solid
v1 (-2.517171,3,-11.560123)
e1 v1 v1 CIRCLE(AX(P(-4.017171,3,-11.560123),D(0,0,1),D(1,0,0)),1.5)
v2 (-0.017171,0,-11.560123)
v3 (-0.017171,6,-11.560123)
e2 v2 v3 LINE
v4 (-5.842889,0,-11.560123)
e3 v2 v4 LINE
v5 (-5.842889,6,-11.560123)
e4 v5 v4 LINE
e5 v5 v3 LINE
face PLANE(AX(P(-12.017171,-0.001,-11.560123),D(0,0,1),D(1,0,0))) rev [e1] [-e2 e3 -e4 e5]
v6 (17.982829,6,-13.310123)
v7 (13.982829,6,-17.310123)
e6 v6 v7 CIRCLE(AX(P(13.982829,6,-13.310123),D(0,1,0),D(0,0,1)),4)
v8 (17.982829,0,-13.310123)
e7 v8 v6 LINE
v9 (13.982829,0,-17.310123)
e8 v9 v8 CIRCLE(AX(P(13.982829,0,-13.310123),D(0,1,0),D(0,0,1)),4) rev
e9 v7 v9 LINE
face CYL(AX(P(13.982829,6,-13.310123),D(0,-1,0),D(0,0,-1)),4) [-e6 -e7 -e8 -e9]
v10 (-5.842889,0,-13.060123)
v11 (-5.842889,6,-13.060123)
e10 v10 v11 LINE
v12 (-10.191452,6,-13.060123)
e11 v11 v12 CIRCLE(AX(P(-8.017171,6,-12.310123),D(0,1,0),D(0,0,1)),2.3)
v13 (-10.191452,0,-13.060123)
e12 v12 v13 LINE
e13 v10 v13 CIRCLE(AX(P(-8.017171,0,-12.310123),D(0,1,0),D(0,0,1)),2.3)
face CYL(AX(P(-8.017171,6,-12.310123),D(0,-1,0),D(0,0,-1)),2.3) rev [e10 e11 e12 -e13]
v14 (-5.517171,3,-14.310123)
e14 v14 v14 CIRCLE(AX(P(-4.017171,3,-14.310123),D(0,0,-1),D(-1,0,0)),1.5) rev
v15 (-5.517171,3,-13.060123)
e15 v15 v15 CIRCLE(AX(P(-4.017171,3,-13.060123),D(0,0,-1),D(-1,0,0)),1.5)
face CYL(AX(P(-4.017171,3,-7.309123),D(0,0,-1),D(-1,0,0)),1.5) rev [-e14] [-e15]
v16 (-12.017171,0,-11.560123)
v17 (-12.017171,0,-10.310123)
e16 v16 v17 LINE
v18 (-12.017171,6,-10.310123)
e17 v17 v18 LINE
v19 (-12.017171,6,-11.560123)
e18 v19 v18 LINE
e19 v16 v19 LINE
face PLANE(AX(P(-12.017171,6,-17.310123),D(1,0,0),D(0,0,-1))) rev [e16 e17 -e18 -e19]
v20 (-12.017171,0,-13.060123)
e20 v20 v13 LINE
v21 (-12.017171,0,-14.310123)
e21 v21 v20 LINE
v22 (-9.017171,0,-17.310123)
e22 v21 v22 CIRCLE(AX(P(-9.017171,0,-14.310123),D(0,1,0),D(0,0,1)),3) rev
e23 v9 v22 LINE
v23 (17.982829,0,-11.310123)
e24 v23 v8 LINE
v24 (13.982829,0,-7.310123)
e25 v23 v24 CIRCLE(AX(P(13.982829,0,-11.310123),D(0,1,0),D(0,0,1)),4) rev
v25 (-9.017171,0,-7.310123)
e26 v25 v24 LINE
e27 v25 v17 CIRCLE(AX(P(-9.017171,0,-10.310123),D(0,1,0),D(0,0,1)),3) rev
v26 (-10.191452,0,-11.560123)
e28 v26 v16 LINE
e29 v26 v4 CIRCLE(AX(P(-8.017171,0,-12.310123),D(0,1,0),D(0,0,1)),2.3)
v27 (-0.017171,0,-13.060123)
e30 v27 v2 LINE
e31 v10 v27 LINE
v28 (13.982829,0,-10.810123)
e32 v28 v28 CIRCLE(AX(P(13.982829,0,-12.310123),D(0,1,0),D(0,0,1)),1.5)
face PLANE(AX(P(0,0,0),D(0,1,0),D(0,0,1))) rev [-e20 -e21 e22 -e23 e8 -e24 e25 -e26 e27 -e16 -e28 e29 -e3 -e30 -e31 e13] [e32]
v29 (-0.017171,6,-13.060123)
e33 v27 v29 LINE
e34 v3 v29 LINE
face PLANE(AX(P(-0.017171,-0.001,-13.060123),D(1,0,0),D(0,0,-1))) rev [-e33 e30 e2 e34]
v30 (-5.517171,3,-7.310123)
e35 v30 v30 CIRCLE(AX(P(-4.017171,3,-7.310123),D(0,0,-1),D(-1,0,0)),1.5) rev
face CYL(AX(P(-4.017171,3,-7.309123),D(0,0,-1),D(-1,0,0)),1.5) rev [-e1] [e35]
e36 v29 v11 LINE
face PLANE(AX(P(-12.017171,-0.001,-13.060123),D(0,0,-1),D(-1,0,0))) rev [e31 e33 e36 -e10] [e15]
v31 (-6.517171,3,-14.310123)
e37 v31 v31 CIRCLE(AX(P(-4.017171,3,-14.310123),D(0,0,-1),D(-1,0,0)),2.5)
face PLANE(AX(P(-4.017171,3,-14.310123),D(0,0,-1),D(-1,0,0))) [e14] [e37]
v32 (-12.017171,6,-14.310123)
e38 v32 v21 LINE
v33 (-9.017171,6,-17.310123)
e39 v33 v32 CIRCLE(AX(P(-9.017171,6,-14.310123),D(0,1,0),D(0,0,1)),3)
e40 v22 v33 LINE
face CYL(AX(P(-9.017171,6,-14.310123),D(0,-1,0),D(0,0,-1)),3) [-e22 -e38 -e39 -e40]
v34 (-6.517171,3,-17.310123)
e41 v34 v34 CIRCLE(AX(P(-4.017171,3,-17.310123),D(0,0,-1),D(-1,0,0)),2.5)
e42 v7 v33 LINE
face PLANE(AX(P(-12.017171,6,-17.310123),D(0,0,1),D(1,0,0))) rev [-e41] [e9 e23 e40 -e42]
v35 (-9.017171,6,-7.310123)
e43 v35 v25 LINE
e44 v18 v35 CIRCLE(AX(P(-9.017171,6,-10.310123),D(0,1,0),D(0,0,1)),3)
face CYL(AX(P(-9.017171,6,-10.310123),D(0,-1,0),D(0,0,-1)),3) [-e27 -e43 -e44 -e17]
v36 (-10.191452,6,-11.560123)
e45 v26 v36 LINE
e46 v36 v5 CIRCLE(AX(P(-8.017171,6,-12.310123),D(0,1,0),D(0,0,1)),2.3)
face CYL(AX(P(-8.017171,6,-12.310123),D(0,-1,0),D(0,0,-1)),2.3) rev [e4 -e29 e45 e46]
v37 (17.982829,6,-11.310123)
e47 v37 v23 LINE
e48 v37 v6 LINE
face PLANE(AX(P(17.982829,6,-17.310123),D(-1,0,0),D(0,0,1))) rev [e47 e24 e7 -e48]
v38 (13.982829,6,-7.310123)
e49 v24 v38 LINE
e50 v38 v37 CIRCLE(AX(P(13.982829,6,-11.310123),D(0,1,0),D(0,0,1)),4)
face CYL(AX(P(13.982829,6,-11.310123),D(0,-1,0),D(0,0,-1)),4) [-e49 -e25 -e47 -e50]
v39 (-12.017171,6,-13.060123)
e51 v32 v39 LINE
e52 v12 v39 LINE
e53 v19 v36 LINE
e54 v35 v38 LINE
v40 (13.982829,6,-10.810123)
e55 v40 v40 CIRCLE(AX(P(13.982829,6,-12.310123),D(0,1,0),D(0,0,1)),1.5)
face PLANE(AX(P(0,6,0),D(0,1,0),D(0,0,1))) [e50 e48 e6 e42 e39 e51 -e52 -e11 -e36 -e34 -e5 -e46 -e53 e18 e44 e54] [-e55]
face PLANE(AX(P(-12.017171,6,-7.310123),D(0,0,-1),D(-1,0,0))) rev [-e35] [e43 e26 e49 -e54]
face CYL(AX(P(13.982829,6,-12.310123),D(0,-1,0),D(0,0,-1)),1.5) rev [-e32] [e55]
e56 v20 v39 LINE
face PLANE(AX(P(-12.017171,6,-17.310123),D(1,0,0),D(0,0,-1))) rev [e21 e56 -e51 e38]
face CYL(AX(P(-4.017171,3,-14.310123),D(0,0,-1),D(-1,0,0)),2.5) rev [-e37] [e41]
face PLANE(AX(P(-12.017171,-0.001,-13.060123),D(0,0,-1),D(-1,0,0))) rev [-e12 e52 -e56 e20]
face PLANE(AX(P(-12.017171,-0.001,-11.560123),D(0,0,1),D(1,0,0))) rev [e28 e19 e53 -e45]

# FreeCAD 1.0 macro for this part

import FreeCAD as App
import Part
import Sketcher

V = App.Vector


def edges_at(feature, points):
    """Names of the edges that pass closest to the given points."""
    edges = feature.Shape.Edges
    near = lambda p: min(range(len(edges)), key=lambda i: edges[i].distToShape(Part.Vertex(*p))[0])
    return sorted({f"Edge{near(p) + 1}" for p in points})


def add_polygon(sketch, points):
    """Adds a closed chain of lines whose ends are joined by coincident constraints."""
    first, n = sketch.GeometryCount, len(points)
    for a, b in zip(points, points[1:] + points[:1]):
        sketch.addGeometry(Part.LineSegment(App.Vector(*a, 0), App.Vector(*b, 0)), False)
    for i in range(n):
        sketch.addConstraint(Sketcher.Constraint("Coincident", first + i, 2, first + (i + 1) % n, 1))

doc = App.newDocument("Part")
body = doc.addObject("PartDesign::Body", "Body")

sketch1 = doc.addObject("Sketcher::SketchObject", "Sketch")
body.addObject(sketch1)
sketch1.AttachmentSupport = (doc.XZ_Plane, [""])
sketch1.MapMode = "FlatFace"
add_polygon(sketch1, [(-12.017171, -17.310123), (-12.017171, -7.310123), (17.982829, -7.310123), (17.982829, -17.310123)])
sketch1.addGeometry(Part.Circle(V(-8.017171, -12.310123, 0), V(0, 0, 1), 2.3), False)
sketch1.addGeometry(Part.Circle(V(13.982829, -12.310123, 0), V(0, 0, 1), 1.5), False)
sketch1.addConstraint([
    Sketcher.Constraint("Vertical", 0),
    Sketcher.Constraint("Horizontal", 1),
    Sketcher.Constraint("Vertical", 2),
    Sketcher.Constraint("Horizontal", 3),
    Sketcher.Constraint("Horizontal", 4, 3, 5, 3),
    Sketcher.Constraint("Diameter", 5, 3.0),
    Sketcher.Constraint("Diameter", 4, 4.6),
    Sketcher.Constraint("DistanceX", 1, 1, 1, 2, 30.0),
    Sketcher.Constraint("DistanceY", 0, 1, 0, 2, 10.0),
    Sketcher.Constraint("DistanceX", 4, 3, 5, 3, 22.0),
    Sketcher.Constraint("DistanceX", 0, 2, 4, 3, 4.0),
    Sketcher.Constraint("DistanceY", 4, 3, 0, 2, 5.0),
    Sketcher.Constraint("DistanceX", 4, 3, -1, 1, 8.017171),
    Sketcher.Constraint("DistanceY", 4, 3, -1, 1, 12.310123),
])
pad1 = doc.addObject("PartDesign::Pad", "Pad")
body.addObject(pad1)
pad1.Profile = sketch1
pad1.Length = 6
pad1.Reversed = True
doc.recompute()

fillet = doc.addObject("PartDesign::Fillet", "Fillet")
body.addObject(fillet)
fillet.Base = (pad1, edges_at(pad1, [(17.983, 3, -17.31), (17.983, 3, -7.31)]))
fillet.Radius = 4
doc.recompute()

fillet2 = doc.addObject("PartDesign::Fillet", "Fillet001")
body.addObject(fillet2)
fillet2.Base = (fillet, edges_at(fillet, [(-12.017, 3, -17.31), (-12.017, 3, -7.31)]))
fillet2.Radius = 3

sketch2 = doc.addObject("Sketcher::SketchObject", "Sketch001")
body.addObject(sketch2)
sketch2.AttachmentSupport = (doc.XY_Plane, [""])
sketch2.MapMode = "FlatFace"
sketch2.AttachmentOffset = App.Placement(V(0, 0, -17.310123), App.Rotation())
sketch2.addGeometry(Part.Circle(V(-4.017171, 3, 0), V(0, 0, 1), 1.5), False)
sketch2.addConstraint([
    Sketcher.Constraint("Diameter", 0, 3.0),
    Sketcher.Constraint("DistanceY", -1, 1, 0, 3, 3.0),
    Sketcher.Constraint("DistanceX", 0, 3, -1, 1, 4.017171),
])
pocket1 = doc.addObject("PartDesign::Pocket", "Pocket")
body.addObject(pocket1)
pocket1.Profile = sketch2
pocket1.Type = "UpToFirst"
pocket1.Reversed = True

sketch3 = doc.addObject("Sketcher::SketchObject", "Sketch002")
body.addObject(sketch3)
sketch3.AttachmentSupport = (doc.XY_Plane, [""])
sketch3.MapMode = "FlatFace"
sketch3.AttachmentOffset = App.Placement(V(0, 0, -17.310123), App.Rotation())
sketch3.addGeometry(Part.Circle(V(-4.017171, 3, 0), V(0, 0, 1), 1.75), False)
sketch3.addConstraint([
    Sketcher.Constraint("Diameter", 0, 3.5),
    Sketcher.Constraint("DistanceY", -1, 1, 0, 3, 3.0),
    Sketcher.Constraint("DistanceX", 0, 3, -1, 1, 4.017171),
])
pocket2 = doc.addObject("PartDesign::Pocket", "Pocket001")
body.addObject(pocket2)
pocket2.Profile = sketch3
pocket2.Length = 3
pocket2.Reversed = True

sketch4 = doc.addObject("Sketcher::SketchObject", "Sketch003")
body.addObject(sketch4)
sketch4.AttachmentSupport = (doc.XY_Plane, [""])
sketch4.MapMode = "FlatFace"
sketch4.AttachmentOffset = App.Placement(V(0, 0, -17.310123), App.Rotation())
sketch4.addGeometry(Part.Circle(V(-4.017171, 3, 0), V(0, 0, 1), 2.5), False)
sketch4.addConstraint([
    Sketcher.Constraint("Diameter", 0, 5.0),
    Sketcher.Constraint("DistanceY", -1, 1, 0, 3, 3.0),
    Sketcher.Constraint("DistanceX", 0, 3, -1, 1, 4.017171),
])
pocket3 = doc.addObject("PartDesign::Pocket", "Pocket002")
body.addObject(pocket3)
pocket3.Profile = sketch4
pocket3.Length = 3
pocket3.Reversed = True

sketch5 = doc.addObject("Sketcher::SketchObject", "Sketch004")
body.addObject(sketch5)
sketch5.AttachmentSupport = (doc.XZ_Plane, [""])
sketch5.MapMode = "FlatFace"
add_polygon(sketch5, [(-12.017171, -13.060123), (-12.017171, -11.560123), (-0.017171, -11.560123), (-0.017171, -13.060123)])
sketch5.addConstraint([
    Sketcher.Constraint("Vertical", 0),
    Sketcher.Constraint("Horizontal", 1),
    Sketcher.Constraint("Vertical", 2),
    Sketcher.Constraint("Horizontal", 3),
    Sketcher.Constraint("DistanceX", 1, 1, 1, 2, 12.0),
    Sketcher.Constraint("DistanceY", 0, 1, 0, 2, 1.5),
    Sketcher.Constraint("DistanceX", 0, 2, -1, 1, 12.017171),
    Sketcher.Constraint("DistanceY", 0, 2, -1, 1, 11.560123),
])
pocket4 = doc.addObject("PartDesign::Pocket", "Pocket003")
body.addObject(pocket4)
pocket4.Profile = sketch5
pocket4.Length = 6

doc.recompute()
